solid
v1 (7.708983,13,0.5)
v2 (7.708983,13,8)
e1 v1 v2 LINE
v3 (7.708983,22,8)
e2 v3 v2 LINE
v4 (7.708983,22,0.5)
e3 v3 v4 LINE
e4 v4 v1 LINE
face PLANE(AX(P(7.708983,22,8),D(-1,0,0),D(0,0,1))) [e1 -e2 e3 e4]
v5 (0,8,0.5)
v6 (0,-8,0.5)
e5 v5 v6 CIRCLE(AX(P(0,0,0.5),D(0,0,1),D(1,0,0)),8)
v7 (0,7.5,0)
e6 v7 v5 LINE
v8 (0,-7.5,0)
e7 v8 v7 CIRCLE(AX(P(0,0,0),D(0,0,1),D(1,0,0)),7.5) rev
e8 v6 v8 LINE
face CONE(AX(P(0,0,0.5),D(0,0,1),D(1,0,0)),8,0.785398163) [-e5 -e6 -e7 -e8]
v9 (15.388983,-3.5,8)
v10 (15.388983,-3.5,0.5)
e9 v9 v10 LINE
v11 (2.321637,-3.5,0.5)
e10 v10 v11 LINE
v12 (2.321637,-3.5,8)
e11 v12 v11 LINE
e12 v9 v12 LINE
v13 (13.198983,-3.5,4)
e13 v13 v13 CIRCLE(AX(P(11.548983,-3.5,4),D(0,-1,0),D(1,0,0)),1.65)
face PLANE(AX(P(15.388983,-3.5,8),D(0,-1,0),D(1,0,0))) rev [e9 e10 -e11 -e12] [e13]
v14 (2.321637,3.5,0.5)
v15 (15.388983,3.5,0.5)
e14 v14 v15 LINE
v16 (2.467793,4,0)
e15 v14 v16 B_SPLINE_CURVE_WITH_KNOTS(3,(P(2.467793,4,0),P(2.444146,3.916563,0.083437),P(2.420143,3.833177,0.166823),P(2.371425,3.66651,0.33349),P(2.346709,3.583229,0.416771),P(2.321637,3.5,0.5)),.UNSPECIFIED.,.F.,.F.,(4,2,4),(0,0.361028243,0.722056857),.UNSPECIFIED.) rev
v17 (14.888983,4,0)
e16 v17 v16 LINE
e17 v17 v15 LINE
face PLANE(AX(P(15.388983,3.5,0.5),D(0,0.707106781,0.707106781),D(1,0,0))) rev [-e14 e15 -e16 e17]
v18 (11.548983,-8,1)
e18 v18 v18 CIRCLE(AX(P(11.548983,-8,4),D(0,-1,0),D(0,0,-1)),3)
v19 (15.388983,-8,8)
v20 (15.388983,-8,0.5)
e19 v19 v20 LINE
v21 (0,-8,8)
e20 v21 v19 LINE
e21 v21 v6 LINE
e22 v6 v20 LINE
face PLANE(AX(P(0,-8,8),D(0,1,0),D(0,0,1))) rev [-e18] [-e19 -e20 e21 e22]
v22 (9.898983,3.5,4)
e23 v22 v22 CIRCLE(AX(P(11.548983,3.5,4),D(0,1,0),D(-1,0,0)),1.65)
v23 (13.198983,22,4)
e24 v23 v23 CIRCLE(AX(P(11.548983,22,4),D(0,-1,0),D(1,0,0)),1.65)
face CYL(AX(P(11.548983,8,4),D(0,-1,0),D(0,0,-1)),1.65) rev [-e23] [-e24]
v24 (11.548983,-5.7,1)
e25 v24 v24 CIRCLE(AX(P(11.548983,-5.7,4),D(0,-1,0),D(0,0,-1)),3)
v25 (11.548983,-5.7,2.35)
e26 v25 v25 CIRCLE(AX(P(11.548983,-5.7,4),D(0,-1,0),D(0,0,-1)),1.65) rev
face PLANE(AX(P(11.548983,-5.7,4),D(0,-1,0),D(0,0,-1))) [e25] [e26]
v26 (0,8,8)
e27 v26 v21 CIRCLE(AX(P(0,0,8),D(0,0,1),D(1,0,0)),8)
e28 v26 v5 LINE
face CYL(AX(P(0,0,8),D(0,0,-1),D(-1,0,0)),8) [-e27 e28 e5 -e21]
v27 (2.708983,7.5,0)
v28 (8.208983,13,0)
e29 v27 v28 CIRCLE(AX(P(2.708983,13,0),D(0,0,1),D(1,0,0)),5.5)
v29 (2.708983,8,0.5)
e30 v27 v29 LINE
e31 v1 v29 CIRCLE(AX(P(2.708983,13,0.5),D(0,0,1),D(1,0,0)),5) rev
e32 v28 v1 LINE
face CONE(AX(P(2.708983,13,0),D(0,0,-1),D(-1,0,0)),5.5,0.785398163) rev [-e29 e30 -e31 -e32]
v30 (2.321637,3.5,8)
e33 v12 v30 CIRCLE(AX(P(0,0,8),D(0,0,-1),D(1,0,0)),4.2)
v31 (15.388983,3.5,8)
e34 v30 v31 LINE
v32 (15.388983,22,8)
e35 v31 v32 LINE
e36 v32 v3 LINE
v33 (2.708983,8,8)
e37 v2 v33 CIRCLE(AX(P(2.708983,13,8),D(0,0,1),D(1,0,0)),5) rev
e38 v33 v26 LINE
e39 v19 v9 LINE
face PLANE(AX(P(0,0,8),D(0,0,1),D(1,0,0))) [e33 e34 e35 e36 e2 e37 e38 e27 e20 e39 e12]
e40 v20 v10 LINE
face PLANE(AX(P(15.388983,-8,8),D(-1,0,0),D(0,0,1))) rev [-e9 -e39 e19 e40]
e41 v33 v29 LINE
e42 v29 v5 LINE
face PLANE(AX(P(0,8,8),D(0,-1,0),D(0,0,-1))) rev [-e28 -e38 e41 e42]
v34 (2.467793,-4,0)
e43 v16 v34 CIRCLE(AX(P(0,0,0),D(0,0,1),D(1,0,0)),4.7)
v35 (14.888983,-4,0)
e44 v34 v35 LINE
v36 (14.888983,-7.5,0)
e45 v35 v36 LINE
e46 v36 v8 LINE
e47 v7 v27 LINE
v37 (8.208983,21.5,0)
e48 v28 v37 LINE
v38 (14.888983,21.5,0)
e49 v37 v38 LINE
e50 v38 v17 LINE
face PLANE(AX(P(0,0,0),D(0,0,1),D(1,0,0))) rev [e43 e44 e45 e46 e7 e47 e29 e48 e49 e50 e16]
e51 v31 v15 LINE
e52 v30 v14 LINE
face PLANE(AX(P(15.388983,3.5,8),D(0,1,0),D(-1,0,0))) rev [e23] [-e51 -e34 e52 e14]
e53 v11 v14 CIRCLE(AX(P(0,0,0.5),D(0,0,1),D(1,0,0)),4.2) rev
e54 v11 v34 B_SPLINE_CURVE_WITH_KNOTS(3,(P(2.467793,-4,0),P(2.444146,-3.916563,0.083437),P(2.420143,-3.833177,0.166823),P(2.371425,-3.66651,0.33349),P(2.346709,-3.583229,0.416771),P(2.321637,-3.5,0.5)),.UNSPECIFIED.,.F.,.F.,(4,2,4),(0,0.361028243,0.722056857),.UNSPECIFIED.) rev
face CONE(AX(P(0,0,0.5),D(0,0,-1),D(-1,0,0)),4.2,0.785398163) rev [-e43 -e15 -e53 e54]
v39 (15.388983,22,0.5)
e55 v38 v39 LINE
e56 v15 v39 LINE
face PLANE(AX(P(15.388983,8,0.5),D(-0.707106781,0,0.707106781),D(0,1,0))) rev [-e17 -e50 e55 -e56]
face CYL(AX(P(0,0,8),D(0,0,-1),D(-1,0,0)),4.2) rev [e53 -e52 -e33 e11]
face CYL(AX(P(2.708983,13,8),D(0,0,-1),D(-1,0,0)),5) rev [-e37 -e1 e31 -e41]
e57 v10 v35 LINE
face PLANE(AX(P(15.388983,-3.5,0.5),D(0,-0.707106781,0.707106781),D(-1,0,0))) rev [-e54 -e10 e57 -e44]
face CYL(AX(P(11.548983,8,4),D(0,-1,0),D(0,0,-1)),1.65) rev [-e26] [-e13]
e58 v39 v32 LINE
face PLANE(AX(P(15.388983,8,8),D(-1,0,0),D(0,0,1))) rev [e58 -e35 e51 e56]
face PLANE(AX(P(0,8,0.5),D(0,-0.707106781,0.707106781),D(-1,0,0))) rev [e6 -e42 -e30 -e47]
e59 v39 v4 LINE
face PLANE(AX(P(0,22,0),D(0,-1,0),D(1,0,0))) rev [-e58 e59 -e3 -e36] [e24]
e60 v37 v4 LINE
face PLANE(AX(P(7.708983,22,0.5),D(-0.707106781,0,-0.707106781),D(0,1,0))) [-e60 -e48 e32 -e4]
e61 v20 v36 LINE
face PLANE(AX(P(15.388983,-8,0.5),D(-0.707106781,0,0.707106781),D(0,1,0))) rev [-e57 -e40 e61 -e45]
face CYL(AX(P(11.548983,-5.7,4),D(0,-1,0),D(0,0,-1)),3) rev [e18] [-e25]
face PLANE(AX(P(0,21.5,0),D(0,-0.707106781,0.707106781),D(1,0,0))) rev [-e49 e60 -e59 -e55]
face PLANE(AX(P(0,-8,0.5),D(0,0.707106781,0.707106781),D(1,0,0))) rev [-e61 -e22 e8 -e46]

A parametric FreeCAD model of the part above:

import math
import FreeCAD as App
import Part
import Sketcher
from FreeCAD import Vector
Q = App.Units.Quantity


def edges_at(feature, points):
    """Names of the edges that pass closest to the given points."""
    edges = feature.Shape.Edges
    near = lambda p: min(range(len(edges)), key=lambda i: edges[i].distToShape(Part.Vertex(*p))[0])
    return sorted({f"Edge{near(p) + 1}" for p in points})


def add_polygon(sketch, points):
    """Adds a closed chain of lines whose ends are joined by coincident constraints."""
    first, n = sketch.GeometryCount, len(points)
    for a, b in zip(points, points[1:] + points[:1]):
        sketch.addGeometry(Part.LineSegment(App.Vector(*a, 0), App.Vector(*b, 0)), False)
    for i in range(n):
        sketch.addConstraint(Sketcher.Constraint("Coincident", first + i, 2, first + (i + 1) % n, 1))

doc = App.newDocument("Part")
params = doc.addObject("Spreadsheet::Sheet", "Params")
for row, (alias, value) in enumerate([
    ("sketch1_radius", "8 mm"),
    ("sketch1_radius2", "4.2 mm"),
    ("sketch1_height", "4.5 mm"),
    ("pad1_length", "8 mm"),
    ("sketch2_diameter", "3.3 mm"),
    ("sketch3_diameter", "6 mm"),
    ("pocket2_length", "2.3 mm"),
    ("sketch4_diameter", "3.3 mm"),
    ("sketch4_height", "8 mm"),
    ("sketch4_width", "7.68 mm"),
    ("pad2_length", "18.5 mm"),
    ("fillet_radius", "5 mm"),
    ("chamfer_size", "0.5 mm"),
], start=1):
    params.set(f"A{row}", alias)
    params.set(f"B{row}", "=" + value)
    params.setAlias(f"B{row}", alias)

body = doc.addObject("PartDesign::Body", "Body")

# Sketch on XY plane
sketch1 = doc.addObject("Sketcher::SketchObject", "Sketch")
body.addObject(sketch1)
sketch1.AttachmentSupport = (doc.XY_Plane, [""])
sketch1.MapMode = "FlatFace"
sketch1.addGeometry([
    Part.LineSegment(Vector(15.388983, 8, 0), Vector(0, 8, 0)),  # 0
    Part.ArcOfCircle(Part.Circle(Vector(0, 0, 0), Vector(0, 0, 1), 8), math.radians(90), math.radians(270)),  # 1
    Part.LineSegment(Vector(0, -8, 0), Vector(15.388983, -8, 0)),  # 2
    Part.LineSegment(Vector(15.388983, -8, 0), Vector(15.388983, -3.5, 0)),  # 3
    Part.LineSegment(Vector(15.388983, -3.5, 0), Vector(2.321637, -3.5, 0)),  # 4
    Part.ArcOfCircle(Part.Circle(Vector(0, 0, 0), Vector(0, 0, 1), 4.2), math.radians(56.44269), math.radians(303.55731)),  # 5
    Part.LineSegment(Vector(2.321637, 3.5, 0), Vector(15.388983, 3.5, 0)),  # 6
    Part.LineSegment(Vector(15.388983, 3.5, 0), Vector(15.388983, 8, 0)),  # 7
], False)
sketch1.addConstraint([
    Sketcher.Constraint("Tangent", 0, 2, 1, 1),
    Sketcher.Constraint("Tangent", 1, 2, 2, 1),
    Sketcher.Constraint("Coincident", 2, 2, 3, 1),
    Sketcher.Constraint("Coincident", 3, 2, 4, 1),
    Sketcher.Constraint("Coincident", 4, 2, 5, 2),
    Sketcher.Constraint("Coincident", 5, 1, 6, 1),
    Sketcher.Constraint("Coincident", 6, 2, 7, 1),
    Sketcher.Constraint("Coincident", 7, 2, 0, 1),
    Sketcher.Constraint("Horizontal", 0),
    Sketcher.Constraint("Horizontal", 2),
    Sketcher.Constraint("Vertical", 3),
    Sketcher.Constraint("Horizontal", 4),
    Sketcher.Constraint("Horizontal", 6),
    Sketcher.Constraint("Vertical", 7),
    Sketcher.Constraint("Coincident", 1, 3, -1, 1),
    Sketcher.Constraint("Coincident", 5, 3, -1, 1),
    Sketcher.Constraint("Symmetric", 3, 2, 6, 2, -1),
    Sketcher.Constraint("Radius", 1, Q("8 mm")),
    Sketcher.Constraint("Radius", 5, Q("4.2 mm")),
    Sketcher.Constraint("DistanceY", 3, 1, 3, 2, Q("4.5 mm")),
    Sketcher.Constraint("DistanceX", 0, 2, 0, 1, Q("15.388983 mm")),
])
sketch1.setExpression("Constraints[17]", "Params.sketch1_radius")
sketch1.setExpression("Constraints[18]", "Params.sketch1_radius2")
sketch1.setExpression("Constraints[19]", "Params.sketch1_height")
pad1 = doc.addObject("PartDesign::Pad", "Pad")
body.addObject(pad1)
pad1.Profile = sketch1
pad1.setExpression("Length", "Params.pad1_length")

# Sketch on XZ plane
sketch2 = doc.addObject("Sketcher::SketchObject", "Sketch001")
body.addObject(sketch2)
sketch2.AttachmentSupport = (doc.XZ_Plane, [""])
sketch2.MapMode = "FlatFace"
sketch2.AttachmentOffset = App.Placement(Vector(0, 0, 8), App.Rotation())
sketch2.addGeometry(Part.Circle(Vector(11.548983, 4, 0), Vector(0, 0, 1), 1.65), False)
sketch2.addConstraint([
    Sketcher.Constraint("Diameter", 0, Q("3.3 mm")),
    Sketcher.Constraint("DistanceY", -1, 1, 0, 3, Q("4 mm")),
    Sketcher.Constraint("DistanceX", -1, 1, 0, 3, Q("11.548983 mm")),
])
sketch2.setExpression("Constraints[0]", "Params.sketch2_diameter")
pocket1 = doc.addObject("PartDesign::Pocket", "Pocket")
body.addObject(pocket1)
pocket1.Profile = sketch2
pocket1.Type = "ThroughAll"

# Sketch on XZ plane
sketch3 = doc.addObject("Sketcher::SketchObject", "Sketch002")
body.addObject(sketch3)
sketch3.AttachmentSupport = (doc.XZ_Plane, [""])
sketch3.MapMode = "FlatFace"
sketch3.AttachmentOffset = App.Placement(Vector(0, 0, 8), App.Rotation())
sketch3.addGeometry(Part.Circle(Vector(11.548983, 4, 0), Vector(0, 0, 1), 3), False)
sketch3.addConstraint([
    Sketcher.Constraint("Diameter", 0, Q("6 mm")),
    Sketcher.Constraint("DistanceY", -1, 1, 0, 3, Q("4 mm")),
    Sketcher.Constraint("DistanceX", -1, 1, 0, 3, Q("11.548983 mm")),
])
sketch3.setExpression("Constraints[0]", "Params.sketch3_diameter")
pocket2 = doc.addObject("PartDesign::Pocket", "Pocket001")
body.addObject(pocket2)
pocket2.Profile = sketch3
pocket2.setExpression("Length", "Params.pocket2_length")

# Sketch on XZ plane
sketch4 = doc.addObject("Sketcher::SketchObject", "Sketch003")
body.addObject(sketch4)
sketch4.AttachmentSupport = (doc.XZ_Plane, [""])
sketch4.MapMode = "FlatFace"
sketch4.AttachmentOffset = App.Placement(Vector(0, 0, -3.5), App.Rotation())
add_polygon(sketch4, [(7.708983, 8), (7.708983, 0), (15.388983, 0), (15.388983, 8)])  # lines 0-3
sketch4.addGeometry(Part.Circle(Vector(11.548983, 4, 0), Vector(0, 0, 1), 1.65), False)  # 4
sketch4.addConstraint([
    Sketcher.Constraint("Vertical", 0),
    Sketcher.Constraint("Horizontal", 1),
    Sketcher.Constraint("Vertical", 2),
    Sketcher.Constraint("Horizontal", 3),
    Sketcher.Constraint("PointOnObject", 0, 2, -1),
    Sketcher.Constraint("Diameter", 4, Q("3.3 mm")),
    Sketcher.Constraint("DistanceY", 0, 2, 0, 1, Q("8 mm")),
    Sketcher.Constraint("DistanceY", -1, 1, 4, 3, Q("4 mm")),
    Sketcher.Constraint("DistanceX", 1, 1, 1, 2, Q("7.68 mm")),
    Sketcher.Constraint("DistanceX", 0, 2, 4, 3, Q("3.84 mm")),
    Sketcher.Constraint("DistanceX", -1, 1, 4, 3, Q("11.548983 mm")),
])
sketch4.setExpression("Constraints[9]", "Params.sketch4_diameter")
sketch4.setExpression("Constraints[10]", "Params.sketch4_height")
sketch4.setExpression("Constraints[12]", "Params.sketch4_width")
pad2 = doc.addObject("PartDesign::Pad", "Pad001")
body.addObject(pad2)
pad2.Profile = sketch4
pad2.setExpression("Length", "Params.pad2_length")
pad2.Reversed = True
doc.recompute()

fillet = doc.addObject("PartDesign::Fillet", "Fillet")
body.addObject(fillet)
fillet.Base = (pad2, edges_at(pad2, [(7.709, 8, 4)]))
fillet.setExpression("Radius", "Params.fillet_radius")
doc.recompute()

chamfer = doc.addObject("PartDesign::Chamfer", "Chamfer")
body.addObject(chamfer)
chamfer.Base = (fillet, edges_at(fillet, [
    (8.855, 3.5, 0),
    (-4.2, 0, 0),
    (11.549, 22, 0),
    (7.709, 17.5, 0),
    (1.354, 8, 0),
    (6.245, 9.464, 0),
    (8.855, -3.5, 0),
    (15.389, -5.75, 0),
    (7.694, -8, 0),
    (-8, 0, 0),
    (15.389, 12.75, 0),
]))
chamfer.setExpression("Size", "Params.chamfer_size")

doc.recompute()
